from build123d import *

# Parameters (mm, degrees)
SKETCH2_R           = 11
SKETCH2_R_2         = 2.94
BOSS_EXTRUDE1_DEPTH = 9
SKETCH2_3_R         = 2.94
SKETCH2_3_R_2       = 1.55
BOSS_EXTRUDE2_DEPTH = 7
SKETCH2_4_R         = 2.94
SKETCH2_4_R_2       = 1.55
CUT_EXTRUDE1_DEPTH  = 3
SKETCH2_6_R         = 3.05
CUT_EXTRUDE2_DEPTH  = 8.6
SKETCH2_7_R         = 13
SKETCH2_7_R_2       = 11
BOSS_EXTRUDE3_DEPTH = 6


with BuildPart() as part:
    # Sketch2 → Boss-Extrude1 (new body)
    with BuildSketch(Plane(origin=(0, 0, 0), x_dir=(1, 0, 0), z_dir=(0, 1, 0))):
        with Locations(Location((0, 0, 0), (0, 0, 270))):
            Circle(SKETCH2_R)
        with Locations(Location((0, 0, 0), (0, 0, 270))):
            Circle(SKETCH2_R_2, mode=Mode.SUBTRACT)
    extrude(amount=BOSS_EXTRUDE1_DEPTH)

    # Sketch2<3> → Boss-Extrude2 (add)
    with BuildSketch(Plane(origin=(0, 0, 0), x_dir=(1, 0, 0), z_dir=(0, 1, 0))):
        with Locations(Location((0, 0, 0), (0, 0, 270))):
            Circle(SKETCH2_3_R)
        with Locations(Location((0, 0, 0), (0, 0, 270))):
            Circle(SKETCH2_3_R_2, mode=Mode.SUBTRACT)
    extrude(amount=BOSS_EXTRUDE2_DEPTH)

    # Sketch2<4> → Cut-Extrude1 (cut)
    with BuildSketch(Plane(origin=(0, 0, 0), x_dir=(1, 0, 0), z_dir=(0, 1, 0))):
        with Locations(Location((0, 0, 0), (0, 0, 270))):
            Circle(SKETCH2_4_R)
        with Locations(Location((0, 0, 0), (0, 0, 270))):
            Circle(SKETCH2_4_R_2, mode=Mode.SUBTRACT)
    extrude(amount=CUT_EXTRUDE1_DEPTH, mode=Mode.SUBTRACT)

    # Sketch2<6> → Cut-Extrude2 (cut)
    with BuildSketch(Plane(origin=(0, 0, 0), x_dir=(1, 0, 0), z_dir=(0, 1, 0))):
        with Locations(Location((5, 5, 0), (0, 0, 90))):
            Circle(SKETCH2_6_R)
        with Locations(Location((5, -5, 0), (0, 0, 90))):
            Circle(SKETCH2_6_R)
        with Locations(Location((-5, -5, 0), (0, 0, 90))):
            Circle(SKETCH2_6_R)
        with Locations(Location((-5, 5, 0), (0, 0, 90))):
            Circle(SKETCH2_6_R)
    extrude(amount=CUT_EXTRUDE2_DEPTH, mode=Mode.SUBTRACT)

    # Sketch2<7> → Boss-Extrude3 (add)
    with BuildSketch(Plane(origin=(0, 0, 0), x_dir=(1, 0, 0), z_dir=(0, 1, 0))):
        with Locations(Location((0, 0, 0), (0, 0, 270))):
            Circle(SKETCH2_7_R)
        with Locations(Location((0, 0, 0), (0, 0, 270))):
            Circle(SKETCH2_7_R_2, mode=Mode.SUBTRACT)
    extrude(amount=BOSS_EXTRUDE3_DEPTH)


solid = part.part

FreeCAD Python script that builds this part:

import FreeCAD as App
import Part
import Sketcher
from FreeCAD import Vector

doc = App.newDocument("Part")
body = doc.addObject("PartDesign::Body", "Body")

sketch1 = doc.addObject("Sketcher::SketchObject", "Sketch")
body.addObject(sketch1)
sketch1.AttachmentSupport = (doc.XZ_Plane, [""])
sketch1.MapMode = "FlatFace"
sketch1.addGeometry(Part.Circle(Vector(0, 0, 0), Vector(0, 0, 1), 11), False)
sketch1.addGeometry(Part.Circle(Vector(0, 0, 0), Vector(0, 0, 1), 2.9), False)
sketch1.addConstraint(Sketcher.Constraint("Coincident", 0, 3, -1, 1))
sketch1.addConstraint(Sketcher.Constraint("Coincident", 1, 3, -1, 1))
sketch1.addConstraint(Sketcher.Constraint("Diameter", 0, 22.0))
sketch1.addConstraint(Sketcher.Constraint("Diameter", 1, 5.88))
pad1 = doc.addObject("PartDesign::Pad", "Pad")
body.addObject(pad1)
pad1.Profile = sketch1
pad1.Length = 9
pad1.Reversed = True

sketch2 = doc.addObject("Sketcher::SketchObject", "Sketch001")
body.addObject(sketch2)
sketch2.AttachmentSupport = (doc.XZ_Plane, [""])
sketch2.MapMode = "FlatFace"
sketch2.addGeometry(Part.Circle(Vector(0, 0, 0), Vector(0, 0, 1), 2.9), False)
sketch2.addGeometry(Part.Circle(Vector(0, 0, 0), Vector(0, 0, 1), 1.6), False)
sketch2.addConstraint(Sketcher.Constraint("Coincident", 0, 3, -1, 1))
sketch2.addConstraint(Sketcher.Constraint("Coincident", 1, 3, -1, 1))
sketch2.addConstraint(Sketcher.Constraint("Diameter", 1, 3.1))
sketch2.addConstraint(Sketcher.Constraint("Diameter", 0, 5.88))
pad2 = doc.addObject("PartDesign::Pad", "Pad001")
body.addObject(pad2)
pad2.Profile = sketch2
pad2.Length = 7
pad2.Reversed = True

sketch3 = doc.addObject("Sketcher::SketchObject", "Sketch002")
body.addObject(sketch3)
sketch3.AttachmentSupport = (doc.XZ_Plane, [""])
sketch3.MapMode = "FlatFace"
sketch3.addGeometry(Part.Circle(Vector(0, 0, 0), Vector(0, 0, 1), 2.9), False)
sketch3.addGeometry(Part.Circle(Vector(0, 0, 0), Vector(0, 0, 1), 1.6), False)
sketch3.addConstraint(Sketcher.Constraint("Coincident", 0, 3, -1, 1))
sketch3.addConstraint(Sketcher.Constraint("Coincident", 1, 3, -1, 1))
sketch3.addConstraint(Sketcher.Constraint("Diameter", 1, 3.1))
sketch3.addConstraint(Sketcher.Constraint("Diameter", 0, 5.88))
pocket1 = doc.addObject("PartDesign::Pocket", "Pocket")
body.addObject(pocket1)
pocket1.Profile = sketch3
pocket1.Length = 3

sketch4 = doc.addObject("Sketcher::SketchObject", "Sketch003")
body.addObject(sketch4)
sketch4.AttachmentSupport = (doc.XZ_Plane, [""])
sketch4.MapMode = "FlatFace"
sketch4.addGeometry(Part.Circle(Vector(5, -5, 0), Vector(0, 0, 1), 3), False)
sketch4.addGeometry(Part.Circle(Vector(5, 5, 0), Vector(0, 0, 1), 3), False)
sketch4.addGeometry(Part.Circle(Vector(-5, 5, 0), Vector(0, 0, 1), 3), False)
sketch4.addGeometry(Part.Circle(Vector(-5, -5, 0), Vector(0, 0, 1), 3), False)
sketch4.addConstraint(Sketcher.Constraint("Equal", 0, 1))
sketch4.addConstraint(Sketcher.Constraint("Equal", 1, 2))
sketch4.addConstraint(Sketcher.Constraint("Equal", 2, 3))
sketch4.addConstraint(Sketcher.Constraint("Symmetric", 0, 3, 2, 3, -1, 1))
sketch4.addConstraint(Sketcher.Constraint("Symmetric", 1, 3, 3, 3, -1, 1))
sketch4.addConstraint(Sketcher.Constraint("Symmetric", 1, 3, 2, 3, -2))
sketch4.addConstraint(Sketcher.Constraint("Diameter", 0, 6.1))
sketch4.addConstraint(Sketcher.Constraint("DistanceX", -1, 1, 0, 3, 5.0))
sketch4.addConstraint(Sketcher.Constraint("DistanceY", 0, 3, -1, 1, 5.0))
pocket2 = doc.addObject("PartDesign::Pocket", "Pocket001")
body.addObject(pocket2)
pocket2.Profile = sketch4
pocket2.Length = 8.6

sketch5 = doc.addObject("Sketcher::SketchObject", "Sketch004")
body.addObject(sketch5)
sketch5.AttachmentSupport = (doc.XZ_Plane, [""])
sketch5.MapMode = "FlatFace"
sketch5.addGeometry(Part.Circle(Vector(0, 0, 0), Vector(0, 0, 1), 13), False)
sketch5.addGeometry(Part.Circle(Vector(0, 0, 0), Vector(0, 0, 1), 11), False)
sketch5.addConstraint(Sketcher.Constraint("Coincident", 0, 3, -1, 1))
sketch5.addConstraint(Sketcher.Constraint("Coincident", 1, 3, -1, 1))
sketch5.addConstraint(Sketcher.Constraint("Diameter", 0, 26.0))
sketch5.addConstraint(Sketcher.Constraint("Diameter", 1, 22.0))
pad3 = doc.addObject("PartDesign::Pad", "Pad002")
body.addObject(pad3)
pad3.Profile = sketch5
pad3.Length = 6
pad3.Reversed = True

doc.recompute()
